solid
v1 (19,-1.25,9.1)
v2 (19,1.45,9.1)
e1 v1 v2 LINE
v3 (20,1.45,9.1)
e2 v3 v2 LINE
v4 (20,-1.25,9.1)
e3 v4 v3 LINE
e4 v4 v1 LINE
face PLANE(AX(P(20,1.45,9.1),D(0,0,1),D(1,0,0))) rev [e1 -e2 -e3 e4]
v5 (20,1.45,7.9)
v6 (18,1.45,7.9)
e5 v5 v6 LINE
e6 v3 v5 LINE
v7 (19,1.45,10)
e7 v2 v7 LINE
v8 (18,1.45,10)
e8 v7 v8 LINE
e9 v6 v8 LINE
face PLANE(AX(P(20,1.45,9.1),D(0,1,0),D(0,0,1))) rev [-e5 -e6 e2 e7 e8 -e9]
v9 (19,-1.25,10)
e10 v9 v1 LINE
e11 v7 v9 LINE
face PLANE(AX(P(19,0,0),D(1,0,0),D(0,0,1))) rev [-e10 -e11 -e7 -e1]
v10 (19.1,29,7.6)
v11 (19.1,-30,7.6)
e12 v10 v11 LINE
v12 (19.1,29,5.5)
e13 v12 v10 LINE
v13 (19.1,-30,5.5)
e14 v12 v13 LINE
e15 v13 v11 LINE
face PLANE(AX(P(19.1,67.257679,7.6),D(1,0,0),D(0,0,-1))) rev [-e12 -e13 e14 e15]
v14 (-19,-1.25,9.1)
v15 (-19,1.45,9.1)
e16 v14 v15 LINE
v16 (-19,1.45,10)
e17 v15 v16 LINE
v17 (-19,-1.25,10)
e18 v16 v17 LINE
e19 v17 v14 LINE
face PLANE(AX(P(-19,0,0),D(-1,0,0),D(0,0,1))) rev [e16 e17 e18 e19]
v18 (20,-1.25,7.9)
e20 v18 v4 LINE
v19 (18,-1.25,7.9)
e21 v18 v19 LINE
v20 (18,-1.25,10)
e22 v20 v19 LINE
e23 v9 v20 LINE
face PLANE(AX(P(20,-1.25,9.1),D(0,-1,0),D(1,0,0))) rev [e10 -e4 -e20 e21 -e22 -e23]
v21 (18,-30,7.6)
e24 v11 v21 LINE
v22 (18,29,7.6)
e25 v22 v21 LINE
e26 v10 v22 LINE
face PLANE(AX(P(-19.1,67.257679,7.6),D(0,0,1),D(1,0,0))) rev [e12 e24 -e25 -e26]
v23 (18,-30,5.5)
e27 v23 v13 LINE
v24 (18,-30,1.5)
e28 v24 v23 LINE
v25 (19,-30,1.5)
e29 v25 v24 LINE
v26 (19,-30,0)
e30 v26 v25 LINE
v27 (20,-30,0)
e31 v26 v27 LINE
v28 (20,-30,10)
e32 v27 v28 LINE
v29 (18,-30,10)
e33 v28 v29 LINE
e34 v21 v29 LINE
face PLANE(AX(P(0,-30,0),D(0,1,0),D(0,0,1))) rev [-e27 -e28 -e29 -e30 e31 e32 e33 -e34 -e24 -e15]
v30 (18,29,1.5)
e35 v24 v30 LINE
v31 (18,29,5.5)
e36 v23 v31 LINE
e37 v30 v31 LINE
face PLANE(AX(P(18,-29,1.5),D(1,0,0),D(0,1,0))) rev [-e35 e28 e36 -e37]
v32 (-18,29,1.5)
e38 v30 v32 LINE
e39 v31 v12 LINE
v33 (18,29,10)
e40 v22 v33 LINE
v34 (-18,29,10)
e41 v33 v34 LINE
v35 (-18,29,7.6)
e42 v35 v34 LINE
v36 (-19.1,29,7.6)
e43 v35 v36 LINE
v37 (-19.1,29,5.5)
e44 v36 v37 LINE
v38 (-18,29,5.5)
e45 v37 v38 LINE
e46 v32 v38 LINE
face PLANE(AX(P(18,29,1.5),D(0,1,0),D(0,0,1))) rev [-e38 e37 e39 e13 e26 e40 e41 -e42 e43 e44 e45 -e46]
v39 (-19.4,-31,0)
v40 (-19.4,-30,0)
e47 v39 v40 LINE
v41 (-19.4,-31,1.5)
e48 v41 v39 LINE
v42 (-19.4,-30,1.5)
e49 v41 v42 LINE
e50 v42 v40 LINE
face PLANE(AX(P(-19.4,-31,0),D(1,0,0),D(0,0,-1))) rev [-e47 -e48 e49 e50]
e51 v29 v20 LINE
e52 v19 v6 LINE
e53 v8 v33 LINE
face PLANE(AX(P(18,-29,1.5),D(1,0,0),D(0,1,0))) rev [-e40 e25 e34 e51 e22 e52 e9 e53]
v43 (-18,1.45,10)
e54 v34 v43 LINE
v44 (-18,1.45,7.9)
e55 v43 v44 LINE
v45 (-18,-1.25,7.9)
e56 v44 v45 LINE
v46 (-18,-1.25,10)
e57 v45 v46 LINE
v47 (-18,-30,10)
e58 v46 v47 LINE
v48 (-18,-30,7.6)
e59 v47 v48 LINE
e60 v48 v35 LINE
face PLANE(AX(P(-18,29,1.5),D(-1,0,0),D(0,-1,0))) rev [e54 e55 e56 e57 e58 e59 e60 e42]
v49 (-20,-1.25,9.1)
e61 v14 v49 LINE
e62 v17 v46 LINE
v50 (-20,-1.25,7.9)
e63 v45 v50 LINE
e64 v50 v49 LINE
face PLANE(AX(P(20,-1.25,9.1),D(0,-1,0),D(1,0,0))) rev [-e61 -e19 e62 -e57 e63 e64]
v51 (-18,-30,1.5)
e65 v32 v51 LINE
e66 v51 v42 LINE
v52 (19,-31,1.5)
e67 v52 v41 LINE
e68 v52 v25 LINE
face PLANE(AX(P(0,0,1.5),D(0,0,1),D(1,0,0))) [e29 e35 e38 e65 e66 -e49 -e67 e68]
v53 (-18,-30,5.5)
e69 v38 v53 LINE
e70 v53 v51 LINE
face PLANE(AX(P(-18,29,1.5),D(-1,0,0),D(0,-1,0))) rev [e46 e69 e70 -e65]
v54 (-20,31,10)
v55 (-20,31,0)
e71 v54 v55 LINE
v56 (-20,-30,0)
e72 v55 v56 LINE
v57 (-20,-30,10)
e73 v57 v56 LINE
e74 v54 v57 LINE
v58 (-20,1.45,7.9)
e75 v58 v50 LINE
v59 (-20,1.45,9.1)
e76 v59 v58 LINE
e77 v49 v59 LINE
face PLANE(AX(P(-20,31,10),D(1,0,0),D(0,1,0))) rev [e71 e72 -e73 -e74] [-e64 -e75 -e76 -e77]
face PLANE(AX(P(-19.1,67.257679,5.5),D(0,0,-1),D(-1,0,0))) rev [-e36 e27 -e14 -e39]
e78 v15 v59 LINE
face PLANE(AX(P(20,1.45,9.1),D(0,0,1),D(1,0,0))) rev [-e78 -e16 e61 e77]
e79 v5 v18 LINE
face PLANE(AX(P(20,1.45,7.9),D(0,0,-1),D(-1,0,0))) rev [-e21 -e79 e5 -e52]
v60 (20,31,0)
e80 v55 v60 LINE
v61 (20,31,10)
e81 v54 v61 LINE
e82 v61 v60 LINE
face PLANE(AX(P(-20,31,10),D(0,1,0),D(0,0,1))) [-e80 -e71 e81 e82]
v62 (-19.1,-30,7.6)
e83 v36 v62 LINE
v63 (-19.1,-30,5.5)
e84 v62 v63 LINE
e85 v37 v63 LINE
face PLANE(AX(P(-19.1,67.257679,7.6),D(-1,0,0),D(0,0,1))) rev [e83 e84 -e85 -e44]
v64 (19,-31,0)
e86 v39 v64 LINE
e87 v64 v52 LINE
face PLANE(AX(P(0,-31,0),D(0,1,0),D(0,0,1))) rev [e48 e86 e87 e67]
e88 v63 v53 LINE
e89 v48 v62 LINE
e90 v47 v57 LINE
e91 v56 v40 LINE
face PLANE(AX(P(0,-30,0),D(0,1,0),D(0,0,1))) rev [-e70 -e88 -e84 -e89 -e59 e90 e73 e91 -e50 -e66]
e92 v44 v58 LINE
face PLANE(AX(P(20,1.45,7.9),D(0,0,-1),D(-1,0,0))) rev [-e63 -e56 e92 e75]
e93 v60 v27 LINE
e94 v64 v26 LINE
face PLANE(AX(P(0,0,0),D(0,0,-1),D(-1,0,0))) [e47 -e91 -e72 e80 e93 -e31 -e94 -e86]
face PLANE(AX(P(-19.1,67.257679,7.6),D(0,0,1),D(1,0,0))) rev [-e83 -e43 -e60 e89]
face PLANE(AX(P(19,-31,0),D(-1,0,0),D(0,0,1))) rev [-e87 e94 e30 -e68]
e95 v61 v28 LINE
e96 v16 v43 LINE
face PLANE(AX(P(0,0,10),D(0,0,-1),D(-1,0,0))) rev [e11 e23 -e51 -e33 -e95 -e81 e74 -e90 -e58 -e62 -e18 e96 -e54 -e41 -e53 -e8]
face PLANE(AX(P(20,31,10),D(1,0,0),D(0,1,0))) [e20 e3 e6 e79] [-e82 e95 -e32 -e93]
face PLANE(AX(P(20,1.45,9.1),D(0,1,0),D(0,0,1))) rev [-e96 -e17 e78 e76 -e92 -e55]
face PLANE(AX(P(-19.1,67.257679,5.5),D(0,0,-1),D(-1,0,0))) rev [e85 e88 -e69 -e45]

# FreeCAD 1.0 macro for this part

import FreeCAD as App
import Part
import Sketcher


def add_polygon(sketch, points):
    """Adds a closed chain of lines whose ends are joined by coincident constraints."""
    first, n = sketch.GeometryCount, len(points)
    for a, b in zip(points, points[1:] + points[:1]):
        sketch.addGeometry(Part.LineSegment(App.Vector(*a, 0), App.Vector(*b, 0)), False)
    for i in range(n):
        sketch.addConstraint(Sketcher.Constraint("Coincident", first + i, 2, first + (i + 1) % n, 1))

doc = App.newDocument("Part")
body = doc.addObject("PartDesign::Body", "Body")

# Sketch on XY plane
sketch1 = body.newObject("Sketcher::SketchObject", "Sketch")
sketch1.AttachmentSupport = (doc.getObject("XY_Plane"), [""])
sketch1.MapMode = "FlatFace"
add_polygon(sketch1, [(-20, 31), (-20, -31), (20, -31), (20, 31)])  # lines 0-3
sketch1.addConstraint(Sketcher.Constraint("Vertical", 0))
sketch1.addConstraint(Sketcher.Constraint("Horizontal", 1))
sketch1.addConstraint(Sketcher.Constraint("Vertical", 2))
sketch1.addConstraint(Sketcher.Constraint("Horizontal", 3))
sketch1.addConstraint(Sketcher.Constraint("Symmetric", 0, 2, 2, 2, -1, 1))
sketch1.addConstraint(Sketcher.Constraint("DistanceX", 1, 1, 1, 2, 40.0))
sketch1.addConstraint(Sketcher.Constraint("DistanceY", 0, 2, 0, 1, 62.0))
pad1 = body.newObject("PartDesign::Pad", "Pad")
pad1.Profile = sketch1
pad1.Length = 10

# Sketch on XY plane
sketch2 = body.newObject("Sketcher::SketchObject", "Sketch001")
sketch2.AttachmentSupport = (doc.getObject("XY_Plane"), [""])
sketch2.MapMode = "FlatFace"
sketch2.AttachmentOffset = App.Placement(App.Vector(0, 0, 10), App.Rotation())
add_polygon(sketch2, [(-18, 29), (-18, -29), (18, -29), (18, 29)])  # lines 0-3
sketch2.addConstraint(Sketcher.Constraint("Vertical", 0))
sketch2.addConstraint(Sketcher.Constraint("Horizontal", 1))
sketch2.addConstraint(Sketcher.Constraint("Vertical", 2))
sketch2.addConstraint(Sketcher.Constraint("Horizontal", 3))
sketch2.addConstraint(Sketcher.Constraint("Symmetric", 0, 2, 2, 2, -1, 1))
sketch2.addConstraint(Sketcher.Constraint("DistanceX", 1, 1, 1, 2, 36.0))
sketch2.addConstraint(Sketcher.Constraint("DistanceY", 0, 2, 0, 1, 58.0))
pocket1 = body.newObject("PartDesign::Pocket", "Pocket")
pocket1.Profile = sketch2
pocket1.Length = 8.5

# Sketch on XZ plane
sketch3 = body.newObject("Sketcher::SketchObject", "Sketch002")
sketch3.AttachmentSupport = (doc.getObject("XZ_Plane"), [""])
sketch3.MapMode = "FlatFace"
sketch3.AttachmentOffset = App.Placement(App.Vector(0, 0, 31), App.Rotation())
add_polygon(sketch3, [(-18, 10), (-18, 1.5), (18, 1.5), (18, 10)])  # lines 0-3
sketch3.addConstraint(Sketcher.Constraint("Vertical", 0))
sketch3.addConstraint(Sketcher.Constraint("Horizontal", 1))
sketch3.addConstraint(Sketcher.Constraint("Vertical", 2))
sketch3.addConstraint(Sketcher.Constraint("Horizontal", 3))
sketch3.addConstraint(Sketcher.Constraint("DistanceX", 1, 1, 1, 2, 36.0))
sketch3.addConstraint(Sketcher.Constraint("DistanceY", 0, 2, 0, 1, 8.5))
sketch3.addConstraint(Sketcher.Constraint("DistanceX", 0, 2, -1, 1, 18.0))
sketch3.addConstraint(Sketcher.Constraint("DistanceY", -1, 1, 2, 2, 10.0))
pocket2 = body.newObject("PartDesign::Pocket", "Pocket001")
pocket2.Profile = sketch3
pocket2.Length = 2

# Sketch on XZ plane
sketch4 = body.newObject("Sketcher::SketchObject", "Sketch003")
sketch4.AttachmentSupport = (doc.getObject("XZ_Plane"), [""])
sketch4.MapMode = "FlatFace"
sketch4.AttachmentOffset = App.Placement(App.Vector(0, 0, 31), App.Rotation())
add_polygon(sketch4, [(-19.1, 7.6), (-19.1, 5.5), (19.1, 5.5), (19.1, 7.6)])  # lines 0-3
sketch4.addConstraint(Sketcher.Constraint("Vertical", 0))
sketch4.addConstraint(Sketcher.Constraint("Horizontal", 1))
sketch4.addConstraint(Sketcher.Constraint("Vertical", 2))
sketch4.addConstraint(Sketcher.Constraint("Horizontal", 3))
sketch4.addConstraint(Sketcher.Constraint("DistanceX", 1, 1, 1, 2, 38.2))
sketch4.addConstraint(Sketcher.Constraint("DistanceY", 0, 2, 0, 1, 2.1))
sketch4.addConstraint(Sketcher.Constraint("DistanceX", 0, 2, -1, 1, 19.1))
sketch4.addConstraint(Sketcher.Constraint("DistanceY", -1, 1, 0, 2, 5.5))
pocket3 = body.newObject("PartDesign::Pocket", "Pocket002")
pocket3.Profile = sketch4
pocket3.Length = 60

# Sketch on XZ plane
sketch5 = body.newObject("Sketcher::SketchObject", "Sketch004")
sketch5.AttachmentSupport = (doc.getObject("XZ_Plane"), [""])
sketch5.MapMode = "FlatFace"
sketch5.AttachmentOffset = App.Placement(App.Vector(0, 0, 31), App.Rotation())
add_polygon(sketch5, [(-20, 10), (-20, 0), (20, 0), (20, 10)])  # lines 0-3
sketch5.addConstraint(Sketcher.Constraint("Vertical", 0))
sketch5.addConstraint(Sketcher.Constraint("Horizontal", 1))
sketch5.addConstraint(Sketcher.Constraint("Vertical", 2))
sketch5.addConstraint(Sketcher.Constraint("Horizontal", 3))
sketch5.addConstraint(Sketcher.Constraint("Symmetric", 0, 2, 1, 2, -1, 1))
sketch5.addConstraint(Sketcher.Constraint("DistanceX", 1, 1, 1, 2, 40.0))
sketch5.addConstraint(Sketcher.Constraint("DistanceY", 0, 2, 0, 1, 10.0))
pocket4 = body.newObject("PartDesign::Pocket", "Pocket003")
pocket4.Profile = sketch5
pocket4.Length = 1

# Sketch on XZ plane
sketch6 = body.newObject("Sketcher::SketchObject", "Sketch005")
sketch6.AttachmentSupport = (doc.getObject("XZ_Plane"), [""])
sketch6.MapMode = "FlatFace"
sketch6.AttachmentOffset = App.Placement(App.Vector(0, 0, 30), App.Rotation())
add_polygon(sketch6, [(-19.4, 1.5), (-19.4, 0), (19, 0), (19, 1.5)])  # lines 0-3
sketch6.addConstraint(Sketcher.Constraint("Vertical", 0))
sketch6.addConstraint(Sketcher.Constraint("Horizontal", 1))
sketch6.addConstraint(Sketcher.Constraint("Vertical", 2))
sketch6.addConstraint(Sketcher.Constraint("Horizontal", 3))
sketch6.addConstraint(Sketcher.Constraint("PointOnObject", 0, 2, -1))
sketch6.addConstraint(Sketcher.Constraint("DistanceX", 1, 1, 1, 2, 38.4))
sketch6.addConstraint(Sketcher.Constraint("DistanceY", 0, 2, 0, 1, 1.5))
sketch6.addConstraint(Sketcher.Constraint("DistanceX", -1, 1, 1, 2, 19.0))
pad2 = body.newObject("PartDesign::Pad", "Pad001")
pad2.Profile = sketch6
pad2.Length = 1

# Sketch on YZ plane
sketch7 = body.newObject("Sketcher::SketchObject", "Sketch006")
sketch7.AttachmentSupport = (doc.getObject("YZ_Plane"), [""])
sketch7.MapMode = "FlatFace"
sketch7.AttachmentOffset = App.Placement(App.Vector(0, 0, -20), App.Rotation())
add_polygon(sketch7, [(1.45, 7.9), (-1.25, 7.9), (-1.25, 9.1), (1.45, 9.1)])  # lines 0-3
sketch7.addConstraint(Sketcher.Constraint("Horizontal", 0))
sketch7.addConstraint(Sketcher.Constraint("Vertical", 1))
sketch7.addConstraint(Sketcher.Constraint("Horizontal", 2))
sketch7.addConstraint(Sketcher.Constraint("Vertical", 3))
sketch7.addConstraint(Sketcher.Constraint("DistanceX", 0, 2, 0, 1, 2.7))
sketch7.addConstraint(Sketcher.Constraint("DistanceY", 1, 1, 1, 2, 1.2))
sketch7.addConstraint(Sketcher.Constraint("DistanceY", -1, 1, 0, 2, 7.9))
sketch7.addConstraint(Sketcher.Constraint("DistanceX", 0, 2, -1, 1, 1.25))
pocket5 = body.newObject("PartDesign::Pocket", "Pocket004")
pocket5.Profile = sketch7
pocket5.Type = "ThroughAll"
pocket5.Reversed = True

# Sketch on YZ plane
sketch8 = body.newObject("Sketcher::SketchObject", "Sketch007")
sketch8.AttachmentSupport = (doc.getObject("YZ_Plane"), [""])
sketch8.MapMode = "FlatFace"
sketch8.AttachmentOffset = App.Placement(App.Vector(0, 0, -18), App.Rotation())
add_polygon(sketch8, [(1.45, 10), (-1.25, 10), (-1.25, 9.1), (1.45, 9.1)])  # lines 0-3
sketch8.addConstraint(Sketcher.Constraint("Horizontal", 0))
sketch8.addConstraint(Sketcher.Constraint("Vertical", 1))
sketch8.addConstraint(Sketcher.Constraint("Horizontal", 2))
sketch8.addConstraint(Sketcher.Constraint("Vertical", 3))
sketch8.addConstraint(Sketcher.Constraint("DistanceX", 0, 2, 0, 1, 2.7))
sketch8.addConstraint(Sketcher.Constraint("DistanceY", 1, 2, 1, 1, 0.9))
sketch8.addConstraint(Sketcher.Constraint("DistanceY", -1, 1, 0, 2, 10.0))
sketch8.addConstraint(Sketcher.Constraint("DistanceX", 0, 2, -1, 1, 1.25))
pocket6 = body.newObject("PartDesign::Pocket", "Pocket005")
pocket6.Profile = sketch8
pocket6.Length = 1
doc.recompute()

mirrored = body.newObject("PartDesign::Mirrored", "Mirrored")
mirrored.Originals = [pocket6]
mirrored.MirrorPlane = (doc.getObject("YZ_Plane"), [""])
body.Tip = mirrored

doc.recompute()
